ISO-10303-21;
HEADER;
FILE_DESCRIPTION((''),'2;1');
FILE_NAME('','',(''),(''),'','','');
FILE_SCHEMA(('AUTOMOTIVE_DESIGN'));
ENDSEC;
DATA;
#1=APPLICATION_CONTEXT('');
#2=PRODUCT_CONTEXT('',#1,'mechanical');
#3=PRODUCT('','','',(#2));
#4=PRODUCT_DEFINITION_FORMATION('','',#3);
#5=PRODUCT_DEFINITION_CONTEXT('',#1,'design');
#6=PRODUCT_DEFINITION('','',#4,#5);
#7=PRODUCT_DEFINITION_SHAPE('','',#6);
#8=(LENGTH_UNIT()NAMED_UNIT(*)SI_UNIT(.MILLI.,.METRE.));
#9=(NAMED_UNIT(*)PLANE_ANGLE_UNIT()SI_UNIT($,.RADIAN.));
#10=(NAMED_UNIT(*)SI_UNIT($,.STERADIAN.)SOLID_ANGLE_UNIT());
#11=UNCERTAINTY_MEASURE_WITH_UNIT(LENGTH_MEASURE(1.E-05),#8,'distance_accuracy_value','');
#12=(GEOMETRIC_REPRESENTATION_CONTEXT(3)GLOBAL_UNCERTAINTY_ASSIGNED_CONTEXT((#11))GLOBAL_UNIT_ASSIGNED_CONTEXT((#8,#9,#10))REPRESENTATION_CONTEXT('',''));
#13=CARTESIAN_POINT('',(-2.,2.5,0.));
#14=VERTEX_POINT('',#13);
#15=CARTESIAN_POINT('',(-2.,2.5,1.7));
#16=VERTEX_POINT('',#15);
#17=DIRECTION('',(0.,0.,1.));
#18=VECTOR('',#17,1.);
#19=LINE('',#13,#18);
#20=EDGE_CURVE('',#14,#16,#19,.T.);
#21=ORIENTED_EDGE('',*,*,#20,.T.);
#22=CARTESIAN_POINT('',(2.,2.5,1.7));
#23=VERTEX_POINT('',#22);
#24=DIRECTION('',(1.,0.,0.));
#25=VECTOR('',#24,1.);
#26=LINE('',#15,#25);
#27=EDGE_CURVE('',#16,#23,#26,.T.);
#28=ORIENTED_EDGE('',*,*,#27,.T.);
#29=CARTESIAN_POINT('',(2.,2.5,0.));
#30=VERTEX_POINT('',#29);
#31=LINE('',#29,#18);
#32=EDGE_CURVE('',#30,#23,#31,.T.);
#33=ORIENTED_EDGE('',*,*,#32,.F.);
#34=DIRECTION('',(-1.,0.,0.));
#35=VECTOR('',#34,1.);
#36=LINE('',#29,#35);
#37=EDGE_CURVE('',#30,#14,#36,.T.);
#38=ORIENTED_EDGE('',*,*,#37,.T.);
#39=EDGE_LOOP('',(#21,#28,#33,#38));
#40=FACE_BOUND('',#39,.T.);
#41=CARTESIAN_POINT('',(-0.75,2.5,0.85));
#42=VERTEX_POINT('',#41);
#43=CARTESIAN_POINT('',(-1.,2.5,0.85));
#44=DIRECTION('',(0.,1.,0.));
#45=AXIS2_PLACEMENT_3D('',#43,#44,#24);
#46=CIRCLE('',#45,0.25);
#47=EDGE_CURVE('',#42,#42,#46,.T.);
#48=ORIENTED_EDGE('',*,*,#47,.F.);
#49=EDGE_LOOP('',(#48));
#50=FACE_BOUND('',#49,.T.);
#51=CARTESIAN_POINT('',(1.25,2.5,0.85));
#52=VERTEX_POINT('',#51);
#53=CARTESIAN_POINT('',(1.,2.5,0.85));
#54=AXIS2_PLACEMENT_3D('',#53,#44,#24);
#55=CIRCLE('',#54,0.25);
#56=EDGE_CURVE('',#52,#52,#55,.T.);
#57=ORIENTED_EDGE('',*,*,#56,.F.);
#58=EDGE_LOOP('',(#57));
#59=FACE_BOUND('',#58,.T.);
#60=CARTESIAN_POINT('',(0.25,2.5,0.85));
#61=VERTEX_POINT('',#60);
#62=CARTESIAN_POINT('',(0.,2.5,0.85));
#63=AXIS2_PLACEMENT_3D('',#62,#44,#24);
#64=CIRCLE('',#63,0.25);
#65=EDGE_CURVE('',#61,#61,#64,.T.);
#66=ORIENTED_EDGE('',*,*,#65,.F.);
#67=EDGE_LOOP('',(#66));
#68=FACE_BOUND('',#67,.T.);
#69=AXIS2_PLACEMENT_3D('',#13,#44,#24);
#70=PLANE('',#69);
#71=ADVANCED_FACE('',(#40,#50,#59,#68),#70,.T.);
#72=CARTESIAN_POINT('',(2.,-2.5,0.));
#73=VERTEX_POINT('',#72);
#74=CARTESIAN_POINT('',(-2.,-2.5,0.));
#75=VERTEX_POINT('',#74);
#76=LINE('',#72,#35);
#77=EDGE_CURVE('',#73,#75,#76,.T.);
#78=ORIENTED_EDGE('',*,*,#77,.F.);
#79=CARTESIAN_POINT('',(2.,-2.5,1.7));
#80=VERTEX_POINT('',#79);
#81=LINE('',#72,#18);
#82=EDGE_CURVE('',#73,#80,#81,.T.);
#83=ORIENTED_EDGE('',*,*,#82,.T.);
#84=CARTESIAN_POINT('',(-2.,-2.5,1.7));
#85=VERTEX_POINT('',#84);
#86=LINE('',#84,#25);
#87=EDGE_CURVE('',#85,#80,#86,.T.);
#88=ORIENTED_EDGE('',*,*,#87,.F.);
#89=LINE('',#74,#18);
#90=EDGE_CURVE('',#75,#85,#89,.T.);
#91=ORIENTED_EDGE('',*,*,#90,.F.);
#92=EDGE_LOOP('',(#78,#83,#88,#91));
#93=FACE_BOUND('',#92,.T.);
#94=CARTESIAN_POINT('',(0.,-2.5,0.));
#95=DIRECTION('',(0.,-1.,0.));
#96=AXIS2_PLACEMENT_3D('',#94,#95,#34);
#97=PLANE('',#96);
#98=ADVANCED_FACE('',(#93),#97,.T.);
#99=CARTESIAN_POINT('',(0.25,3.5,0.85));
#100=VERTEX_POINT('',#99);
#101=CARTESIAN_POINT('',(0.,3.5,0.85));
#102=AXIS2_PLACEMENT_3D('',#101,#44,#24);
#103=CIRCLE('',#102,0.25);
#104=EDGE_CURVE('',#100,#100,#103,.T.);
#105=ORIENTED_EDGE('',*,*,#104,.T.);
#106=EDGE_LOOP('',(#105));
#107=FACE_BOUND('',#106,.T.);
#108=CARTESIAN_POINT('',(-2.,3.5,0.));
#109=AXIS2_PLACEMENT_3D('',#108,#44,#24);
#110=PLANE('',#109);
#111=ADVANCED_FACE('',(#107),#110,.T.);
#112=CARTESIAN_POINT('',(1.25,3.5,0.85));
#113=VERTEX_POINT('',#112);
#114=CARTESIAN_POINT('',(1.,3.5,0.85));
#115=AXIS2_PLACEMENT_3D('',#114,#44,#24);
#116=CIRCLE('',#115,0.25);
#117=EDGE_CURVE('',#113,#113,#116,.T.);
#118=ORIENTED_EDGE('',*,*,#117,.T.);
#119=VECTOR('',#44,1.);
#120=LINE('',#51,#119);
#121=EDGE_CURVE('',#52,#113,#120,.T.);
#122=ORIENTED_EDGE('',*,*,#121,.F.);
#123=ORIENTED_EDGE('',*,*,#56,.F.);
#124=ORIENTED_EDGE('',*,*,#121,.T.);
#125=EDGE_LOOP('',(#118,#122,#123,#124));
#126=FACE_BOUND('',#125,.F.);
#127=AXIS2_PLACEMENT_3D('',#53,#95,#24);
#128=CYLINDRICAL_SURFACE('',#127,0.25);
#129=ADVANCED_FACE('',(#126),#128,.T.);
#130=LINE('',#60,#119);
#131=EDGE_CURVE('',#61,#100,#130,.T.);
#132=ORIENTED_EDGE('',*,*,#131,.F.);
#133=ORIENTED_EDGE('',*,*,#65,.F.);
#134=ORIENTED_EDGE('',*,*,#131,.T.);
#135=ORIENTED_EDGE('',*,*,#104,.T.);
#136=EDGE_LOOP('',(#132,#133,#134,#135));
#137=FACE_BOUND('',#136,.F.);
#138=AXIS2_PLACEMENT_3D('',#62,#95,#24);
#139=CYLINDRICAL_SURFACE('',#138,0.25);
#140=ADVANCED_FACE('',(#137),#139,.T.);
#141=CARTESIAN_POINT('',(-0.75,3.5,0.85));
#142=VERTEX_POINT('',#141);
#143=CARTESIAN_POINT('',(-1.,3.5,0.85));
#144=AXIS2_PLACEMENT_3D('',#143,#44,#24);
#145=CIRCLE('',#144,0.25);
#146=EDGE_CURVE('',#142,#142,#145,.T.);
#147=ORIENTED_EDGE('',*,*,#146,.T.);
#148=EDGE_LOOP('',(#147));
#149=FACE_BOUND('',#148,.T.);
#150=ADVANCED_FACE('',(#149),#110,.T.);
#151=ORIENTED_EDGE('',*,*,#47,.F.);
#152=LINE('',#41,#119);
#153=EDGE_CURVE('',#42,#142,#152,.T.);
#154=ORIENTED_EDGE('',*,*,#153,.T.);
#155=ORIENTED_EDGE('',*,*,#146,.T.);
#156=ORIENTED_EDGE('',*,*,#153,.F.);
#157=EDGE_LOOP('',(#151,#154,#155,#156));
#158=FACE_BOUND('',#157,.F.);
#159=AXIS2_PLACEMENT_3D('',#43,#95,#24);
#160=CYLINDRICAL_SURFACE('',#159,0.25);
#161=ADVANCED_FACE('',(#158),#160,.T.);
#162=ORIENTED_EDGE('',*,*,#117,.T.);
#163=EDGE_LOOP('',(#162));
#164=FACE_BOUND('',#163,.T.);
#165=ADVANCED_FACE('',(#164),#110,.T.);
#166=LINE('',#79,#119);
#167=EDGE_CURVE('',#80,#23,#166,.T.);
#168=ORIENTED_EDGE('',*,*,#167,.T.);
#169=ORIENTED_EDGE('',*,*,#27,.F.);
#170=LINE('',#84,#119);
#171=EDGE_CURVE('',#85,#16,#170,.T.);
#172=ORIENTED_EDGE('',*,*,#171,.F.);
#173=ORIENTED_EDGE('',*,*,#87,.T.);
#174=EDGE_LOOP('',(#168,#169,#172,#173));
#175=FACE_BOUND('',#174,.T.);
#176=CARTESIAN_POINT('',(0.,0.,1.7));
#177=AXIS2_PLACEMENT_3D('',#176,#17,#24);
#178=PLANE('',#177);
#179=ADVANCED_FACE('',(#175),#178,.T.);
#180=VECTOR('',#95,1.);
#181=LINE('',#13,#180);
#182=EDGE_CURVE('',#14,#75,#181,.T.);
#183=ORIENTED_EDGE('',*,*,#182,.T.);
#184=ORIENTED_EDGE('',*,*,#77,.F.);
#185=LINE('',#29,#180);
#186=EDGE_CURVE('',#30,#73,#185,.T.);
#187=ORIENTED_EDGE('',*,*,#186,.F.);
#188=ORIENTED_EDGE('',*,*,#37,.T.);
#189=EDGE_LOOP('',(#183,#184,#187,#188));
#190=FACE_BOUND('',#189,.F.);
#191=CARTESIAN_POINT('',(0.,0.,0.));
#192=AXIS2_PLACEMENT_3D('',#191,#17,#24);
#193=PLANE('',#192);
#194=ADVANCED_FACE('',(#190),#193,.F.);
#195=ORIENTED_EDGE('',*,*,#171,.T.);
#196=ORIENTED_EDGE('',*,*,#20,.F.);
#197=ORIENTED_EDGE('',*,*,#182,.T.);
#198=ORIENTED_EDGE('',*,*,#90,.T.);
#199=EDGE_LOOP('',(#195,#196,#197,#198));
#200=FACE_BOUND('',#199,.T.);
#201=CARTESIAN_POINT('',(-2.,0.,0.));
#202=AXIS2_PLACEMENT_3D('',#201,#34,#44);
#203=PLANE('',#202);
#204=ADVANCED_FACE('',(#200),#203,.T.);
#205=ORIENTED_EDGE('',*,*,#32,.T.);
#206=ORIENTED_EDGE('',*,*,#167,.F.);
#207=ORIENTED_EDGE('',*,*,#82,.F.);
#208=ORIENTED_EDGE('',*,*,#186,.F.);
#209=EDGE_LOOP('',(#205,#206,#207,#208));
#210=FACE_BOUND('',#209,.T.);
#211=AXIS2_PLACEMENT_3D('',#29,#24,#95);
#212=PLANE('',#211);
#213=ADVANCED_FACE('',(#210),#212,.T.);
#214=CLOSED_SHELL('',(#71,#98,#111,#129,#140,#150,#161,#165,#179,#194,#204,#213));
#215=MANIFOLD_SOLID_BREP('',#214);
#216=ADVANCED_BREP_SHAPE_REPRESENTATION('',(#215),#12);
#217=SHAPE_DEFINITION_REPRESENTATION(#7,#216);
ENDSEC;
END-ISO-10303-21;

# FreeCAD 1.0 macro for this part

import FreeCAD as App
import Part
import Sketcher
from FreeCAD import Vector

doc = App.newDocument("Part")
body = doc.addObject("PartDesign::Body", "Body")

# Sketch on XY plane
sketch1 = doc.addObject("Sketcher::SketchObject", "Sketch")
body.addObject(sketch1)
sketch1.AttachmentSupport = (doc.XY_Plane, [""])
sketch1.MapMode = "FlatFace"
sketch1.addGeometry([
    Part.LineSegment(Vector(-2, 2.5, 0), Vector(-2, -2.5, 0)),
    Part.LineSegment(Vector(-2, -2.5, 0), Vector(2, -2.5, 0)),
    Part.LineSegment(Vector(2, -2.5, 0), Vector(2, 2.5, 0)),
    Part.LineSegment(Vector(2, 2.5, 0), Vector(-2, 2.5, 0)),
], False)
sketch1.addConstraint([
    Sketcher.Constraint("Coincident", 0, 2, 1, 1),
    Sketcher.Constraint("Coincident", 1, 2, 2, 1),
    Sketcher.Constraint("Coincident", 2, 2, 3, 1),
    Sketcher.Constraint("Coincident", 3, 2, 0, 1),
    Sketcher.Constraint("Vertical", 0),
    Sketcher.Constraint("Horizontal", 1),
    Sketcher.Constraint("Vertical", 2),
    Sketcher.Constraint("Horizontal", 3),
    Sketcher.Constraint("Symmetric", 0, 2, 2, 2, -1, 1),
    Sketcher.Constraint("DistanceX", 1, 1, 1, 2, 4.0),
    Sketcher.Constraint("DistanceY", 0, 2, 0, 1, 5.0),
])
pad1 = doc.addObject("PartDesign::Pad", "Pad")
body.addObject(pad1)
pad1.Profile = sketch1
pad1.Length = 1.7

# Sketch on XZ plane
sketch2 = doc.addObject("Sketcher::SketchObject", "Sketch001")
body.addObject(sketch2)
sketch2.AttachmentSupport = (doc.XZ_Plane, [""])
sketch2.MapMode = "FlatFace"
sketch2.AttachmentOffset = App.Placement(Vector(0, 0, -2.5), App.Rotation())
sketch2.addGeometry([
    Part.Circle(Vector(-1, 0.85, 0), Vector(0, 0, 1), 0.25),
    Part.Circle(Vector(0, 0.85, 0), Vector(0, 0, 1), 0.25),
    Part.Circle(Vector(1, 0.85, 0), Vector(0, 0, 1), 0.25),
], False)
sketch2.addConstraint([
    Sketcher.Constraint("Equal", 0, 1),
    Sketcher.Constraint("Equal", 1, 2),
    Sketcher.Constraint("Symmetric", 0, 3, 2, 3, -2),
    Sketcher.Constraint("PointOnObject", 1, 3, -2),
    Sketcher.Constraint("Horizontal", 0, 3, 1, 3),
    Sketcher.Constraint("Diameter", 0, 0.5),
    Sketcher.Constraint("DistanceX", 0, 3, -1, 1, 1.0),
    Sketcher.Constraint("DistanceY", -1, 1, 0, 3, 0.85),
])
pad2 = doc.addObject("PartDesign::Pad", "Pad001")
body.addObject(pad2)
pad2.Profile = sketch2
pad2.Length = 1
pad2.Reversed = True

doc.recompute()
